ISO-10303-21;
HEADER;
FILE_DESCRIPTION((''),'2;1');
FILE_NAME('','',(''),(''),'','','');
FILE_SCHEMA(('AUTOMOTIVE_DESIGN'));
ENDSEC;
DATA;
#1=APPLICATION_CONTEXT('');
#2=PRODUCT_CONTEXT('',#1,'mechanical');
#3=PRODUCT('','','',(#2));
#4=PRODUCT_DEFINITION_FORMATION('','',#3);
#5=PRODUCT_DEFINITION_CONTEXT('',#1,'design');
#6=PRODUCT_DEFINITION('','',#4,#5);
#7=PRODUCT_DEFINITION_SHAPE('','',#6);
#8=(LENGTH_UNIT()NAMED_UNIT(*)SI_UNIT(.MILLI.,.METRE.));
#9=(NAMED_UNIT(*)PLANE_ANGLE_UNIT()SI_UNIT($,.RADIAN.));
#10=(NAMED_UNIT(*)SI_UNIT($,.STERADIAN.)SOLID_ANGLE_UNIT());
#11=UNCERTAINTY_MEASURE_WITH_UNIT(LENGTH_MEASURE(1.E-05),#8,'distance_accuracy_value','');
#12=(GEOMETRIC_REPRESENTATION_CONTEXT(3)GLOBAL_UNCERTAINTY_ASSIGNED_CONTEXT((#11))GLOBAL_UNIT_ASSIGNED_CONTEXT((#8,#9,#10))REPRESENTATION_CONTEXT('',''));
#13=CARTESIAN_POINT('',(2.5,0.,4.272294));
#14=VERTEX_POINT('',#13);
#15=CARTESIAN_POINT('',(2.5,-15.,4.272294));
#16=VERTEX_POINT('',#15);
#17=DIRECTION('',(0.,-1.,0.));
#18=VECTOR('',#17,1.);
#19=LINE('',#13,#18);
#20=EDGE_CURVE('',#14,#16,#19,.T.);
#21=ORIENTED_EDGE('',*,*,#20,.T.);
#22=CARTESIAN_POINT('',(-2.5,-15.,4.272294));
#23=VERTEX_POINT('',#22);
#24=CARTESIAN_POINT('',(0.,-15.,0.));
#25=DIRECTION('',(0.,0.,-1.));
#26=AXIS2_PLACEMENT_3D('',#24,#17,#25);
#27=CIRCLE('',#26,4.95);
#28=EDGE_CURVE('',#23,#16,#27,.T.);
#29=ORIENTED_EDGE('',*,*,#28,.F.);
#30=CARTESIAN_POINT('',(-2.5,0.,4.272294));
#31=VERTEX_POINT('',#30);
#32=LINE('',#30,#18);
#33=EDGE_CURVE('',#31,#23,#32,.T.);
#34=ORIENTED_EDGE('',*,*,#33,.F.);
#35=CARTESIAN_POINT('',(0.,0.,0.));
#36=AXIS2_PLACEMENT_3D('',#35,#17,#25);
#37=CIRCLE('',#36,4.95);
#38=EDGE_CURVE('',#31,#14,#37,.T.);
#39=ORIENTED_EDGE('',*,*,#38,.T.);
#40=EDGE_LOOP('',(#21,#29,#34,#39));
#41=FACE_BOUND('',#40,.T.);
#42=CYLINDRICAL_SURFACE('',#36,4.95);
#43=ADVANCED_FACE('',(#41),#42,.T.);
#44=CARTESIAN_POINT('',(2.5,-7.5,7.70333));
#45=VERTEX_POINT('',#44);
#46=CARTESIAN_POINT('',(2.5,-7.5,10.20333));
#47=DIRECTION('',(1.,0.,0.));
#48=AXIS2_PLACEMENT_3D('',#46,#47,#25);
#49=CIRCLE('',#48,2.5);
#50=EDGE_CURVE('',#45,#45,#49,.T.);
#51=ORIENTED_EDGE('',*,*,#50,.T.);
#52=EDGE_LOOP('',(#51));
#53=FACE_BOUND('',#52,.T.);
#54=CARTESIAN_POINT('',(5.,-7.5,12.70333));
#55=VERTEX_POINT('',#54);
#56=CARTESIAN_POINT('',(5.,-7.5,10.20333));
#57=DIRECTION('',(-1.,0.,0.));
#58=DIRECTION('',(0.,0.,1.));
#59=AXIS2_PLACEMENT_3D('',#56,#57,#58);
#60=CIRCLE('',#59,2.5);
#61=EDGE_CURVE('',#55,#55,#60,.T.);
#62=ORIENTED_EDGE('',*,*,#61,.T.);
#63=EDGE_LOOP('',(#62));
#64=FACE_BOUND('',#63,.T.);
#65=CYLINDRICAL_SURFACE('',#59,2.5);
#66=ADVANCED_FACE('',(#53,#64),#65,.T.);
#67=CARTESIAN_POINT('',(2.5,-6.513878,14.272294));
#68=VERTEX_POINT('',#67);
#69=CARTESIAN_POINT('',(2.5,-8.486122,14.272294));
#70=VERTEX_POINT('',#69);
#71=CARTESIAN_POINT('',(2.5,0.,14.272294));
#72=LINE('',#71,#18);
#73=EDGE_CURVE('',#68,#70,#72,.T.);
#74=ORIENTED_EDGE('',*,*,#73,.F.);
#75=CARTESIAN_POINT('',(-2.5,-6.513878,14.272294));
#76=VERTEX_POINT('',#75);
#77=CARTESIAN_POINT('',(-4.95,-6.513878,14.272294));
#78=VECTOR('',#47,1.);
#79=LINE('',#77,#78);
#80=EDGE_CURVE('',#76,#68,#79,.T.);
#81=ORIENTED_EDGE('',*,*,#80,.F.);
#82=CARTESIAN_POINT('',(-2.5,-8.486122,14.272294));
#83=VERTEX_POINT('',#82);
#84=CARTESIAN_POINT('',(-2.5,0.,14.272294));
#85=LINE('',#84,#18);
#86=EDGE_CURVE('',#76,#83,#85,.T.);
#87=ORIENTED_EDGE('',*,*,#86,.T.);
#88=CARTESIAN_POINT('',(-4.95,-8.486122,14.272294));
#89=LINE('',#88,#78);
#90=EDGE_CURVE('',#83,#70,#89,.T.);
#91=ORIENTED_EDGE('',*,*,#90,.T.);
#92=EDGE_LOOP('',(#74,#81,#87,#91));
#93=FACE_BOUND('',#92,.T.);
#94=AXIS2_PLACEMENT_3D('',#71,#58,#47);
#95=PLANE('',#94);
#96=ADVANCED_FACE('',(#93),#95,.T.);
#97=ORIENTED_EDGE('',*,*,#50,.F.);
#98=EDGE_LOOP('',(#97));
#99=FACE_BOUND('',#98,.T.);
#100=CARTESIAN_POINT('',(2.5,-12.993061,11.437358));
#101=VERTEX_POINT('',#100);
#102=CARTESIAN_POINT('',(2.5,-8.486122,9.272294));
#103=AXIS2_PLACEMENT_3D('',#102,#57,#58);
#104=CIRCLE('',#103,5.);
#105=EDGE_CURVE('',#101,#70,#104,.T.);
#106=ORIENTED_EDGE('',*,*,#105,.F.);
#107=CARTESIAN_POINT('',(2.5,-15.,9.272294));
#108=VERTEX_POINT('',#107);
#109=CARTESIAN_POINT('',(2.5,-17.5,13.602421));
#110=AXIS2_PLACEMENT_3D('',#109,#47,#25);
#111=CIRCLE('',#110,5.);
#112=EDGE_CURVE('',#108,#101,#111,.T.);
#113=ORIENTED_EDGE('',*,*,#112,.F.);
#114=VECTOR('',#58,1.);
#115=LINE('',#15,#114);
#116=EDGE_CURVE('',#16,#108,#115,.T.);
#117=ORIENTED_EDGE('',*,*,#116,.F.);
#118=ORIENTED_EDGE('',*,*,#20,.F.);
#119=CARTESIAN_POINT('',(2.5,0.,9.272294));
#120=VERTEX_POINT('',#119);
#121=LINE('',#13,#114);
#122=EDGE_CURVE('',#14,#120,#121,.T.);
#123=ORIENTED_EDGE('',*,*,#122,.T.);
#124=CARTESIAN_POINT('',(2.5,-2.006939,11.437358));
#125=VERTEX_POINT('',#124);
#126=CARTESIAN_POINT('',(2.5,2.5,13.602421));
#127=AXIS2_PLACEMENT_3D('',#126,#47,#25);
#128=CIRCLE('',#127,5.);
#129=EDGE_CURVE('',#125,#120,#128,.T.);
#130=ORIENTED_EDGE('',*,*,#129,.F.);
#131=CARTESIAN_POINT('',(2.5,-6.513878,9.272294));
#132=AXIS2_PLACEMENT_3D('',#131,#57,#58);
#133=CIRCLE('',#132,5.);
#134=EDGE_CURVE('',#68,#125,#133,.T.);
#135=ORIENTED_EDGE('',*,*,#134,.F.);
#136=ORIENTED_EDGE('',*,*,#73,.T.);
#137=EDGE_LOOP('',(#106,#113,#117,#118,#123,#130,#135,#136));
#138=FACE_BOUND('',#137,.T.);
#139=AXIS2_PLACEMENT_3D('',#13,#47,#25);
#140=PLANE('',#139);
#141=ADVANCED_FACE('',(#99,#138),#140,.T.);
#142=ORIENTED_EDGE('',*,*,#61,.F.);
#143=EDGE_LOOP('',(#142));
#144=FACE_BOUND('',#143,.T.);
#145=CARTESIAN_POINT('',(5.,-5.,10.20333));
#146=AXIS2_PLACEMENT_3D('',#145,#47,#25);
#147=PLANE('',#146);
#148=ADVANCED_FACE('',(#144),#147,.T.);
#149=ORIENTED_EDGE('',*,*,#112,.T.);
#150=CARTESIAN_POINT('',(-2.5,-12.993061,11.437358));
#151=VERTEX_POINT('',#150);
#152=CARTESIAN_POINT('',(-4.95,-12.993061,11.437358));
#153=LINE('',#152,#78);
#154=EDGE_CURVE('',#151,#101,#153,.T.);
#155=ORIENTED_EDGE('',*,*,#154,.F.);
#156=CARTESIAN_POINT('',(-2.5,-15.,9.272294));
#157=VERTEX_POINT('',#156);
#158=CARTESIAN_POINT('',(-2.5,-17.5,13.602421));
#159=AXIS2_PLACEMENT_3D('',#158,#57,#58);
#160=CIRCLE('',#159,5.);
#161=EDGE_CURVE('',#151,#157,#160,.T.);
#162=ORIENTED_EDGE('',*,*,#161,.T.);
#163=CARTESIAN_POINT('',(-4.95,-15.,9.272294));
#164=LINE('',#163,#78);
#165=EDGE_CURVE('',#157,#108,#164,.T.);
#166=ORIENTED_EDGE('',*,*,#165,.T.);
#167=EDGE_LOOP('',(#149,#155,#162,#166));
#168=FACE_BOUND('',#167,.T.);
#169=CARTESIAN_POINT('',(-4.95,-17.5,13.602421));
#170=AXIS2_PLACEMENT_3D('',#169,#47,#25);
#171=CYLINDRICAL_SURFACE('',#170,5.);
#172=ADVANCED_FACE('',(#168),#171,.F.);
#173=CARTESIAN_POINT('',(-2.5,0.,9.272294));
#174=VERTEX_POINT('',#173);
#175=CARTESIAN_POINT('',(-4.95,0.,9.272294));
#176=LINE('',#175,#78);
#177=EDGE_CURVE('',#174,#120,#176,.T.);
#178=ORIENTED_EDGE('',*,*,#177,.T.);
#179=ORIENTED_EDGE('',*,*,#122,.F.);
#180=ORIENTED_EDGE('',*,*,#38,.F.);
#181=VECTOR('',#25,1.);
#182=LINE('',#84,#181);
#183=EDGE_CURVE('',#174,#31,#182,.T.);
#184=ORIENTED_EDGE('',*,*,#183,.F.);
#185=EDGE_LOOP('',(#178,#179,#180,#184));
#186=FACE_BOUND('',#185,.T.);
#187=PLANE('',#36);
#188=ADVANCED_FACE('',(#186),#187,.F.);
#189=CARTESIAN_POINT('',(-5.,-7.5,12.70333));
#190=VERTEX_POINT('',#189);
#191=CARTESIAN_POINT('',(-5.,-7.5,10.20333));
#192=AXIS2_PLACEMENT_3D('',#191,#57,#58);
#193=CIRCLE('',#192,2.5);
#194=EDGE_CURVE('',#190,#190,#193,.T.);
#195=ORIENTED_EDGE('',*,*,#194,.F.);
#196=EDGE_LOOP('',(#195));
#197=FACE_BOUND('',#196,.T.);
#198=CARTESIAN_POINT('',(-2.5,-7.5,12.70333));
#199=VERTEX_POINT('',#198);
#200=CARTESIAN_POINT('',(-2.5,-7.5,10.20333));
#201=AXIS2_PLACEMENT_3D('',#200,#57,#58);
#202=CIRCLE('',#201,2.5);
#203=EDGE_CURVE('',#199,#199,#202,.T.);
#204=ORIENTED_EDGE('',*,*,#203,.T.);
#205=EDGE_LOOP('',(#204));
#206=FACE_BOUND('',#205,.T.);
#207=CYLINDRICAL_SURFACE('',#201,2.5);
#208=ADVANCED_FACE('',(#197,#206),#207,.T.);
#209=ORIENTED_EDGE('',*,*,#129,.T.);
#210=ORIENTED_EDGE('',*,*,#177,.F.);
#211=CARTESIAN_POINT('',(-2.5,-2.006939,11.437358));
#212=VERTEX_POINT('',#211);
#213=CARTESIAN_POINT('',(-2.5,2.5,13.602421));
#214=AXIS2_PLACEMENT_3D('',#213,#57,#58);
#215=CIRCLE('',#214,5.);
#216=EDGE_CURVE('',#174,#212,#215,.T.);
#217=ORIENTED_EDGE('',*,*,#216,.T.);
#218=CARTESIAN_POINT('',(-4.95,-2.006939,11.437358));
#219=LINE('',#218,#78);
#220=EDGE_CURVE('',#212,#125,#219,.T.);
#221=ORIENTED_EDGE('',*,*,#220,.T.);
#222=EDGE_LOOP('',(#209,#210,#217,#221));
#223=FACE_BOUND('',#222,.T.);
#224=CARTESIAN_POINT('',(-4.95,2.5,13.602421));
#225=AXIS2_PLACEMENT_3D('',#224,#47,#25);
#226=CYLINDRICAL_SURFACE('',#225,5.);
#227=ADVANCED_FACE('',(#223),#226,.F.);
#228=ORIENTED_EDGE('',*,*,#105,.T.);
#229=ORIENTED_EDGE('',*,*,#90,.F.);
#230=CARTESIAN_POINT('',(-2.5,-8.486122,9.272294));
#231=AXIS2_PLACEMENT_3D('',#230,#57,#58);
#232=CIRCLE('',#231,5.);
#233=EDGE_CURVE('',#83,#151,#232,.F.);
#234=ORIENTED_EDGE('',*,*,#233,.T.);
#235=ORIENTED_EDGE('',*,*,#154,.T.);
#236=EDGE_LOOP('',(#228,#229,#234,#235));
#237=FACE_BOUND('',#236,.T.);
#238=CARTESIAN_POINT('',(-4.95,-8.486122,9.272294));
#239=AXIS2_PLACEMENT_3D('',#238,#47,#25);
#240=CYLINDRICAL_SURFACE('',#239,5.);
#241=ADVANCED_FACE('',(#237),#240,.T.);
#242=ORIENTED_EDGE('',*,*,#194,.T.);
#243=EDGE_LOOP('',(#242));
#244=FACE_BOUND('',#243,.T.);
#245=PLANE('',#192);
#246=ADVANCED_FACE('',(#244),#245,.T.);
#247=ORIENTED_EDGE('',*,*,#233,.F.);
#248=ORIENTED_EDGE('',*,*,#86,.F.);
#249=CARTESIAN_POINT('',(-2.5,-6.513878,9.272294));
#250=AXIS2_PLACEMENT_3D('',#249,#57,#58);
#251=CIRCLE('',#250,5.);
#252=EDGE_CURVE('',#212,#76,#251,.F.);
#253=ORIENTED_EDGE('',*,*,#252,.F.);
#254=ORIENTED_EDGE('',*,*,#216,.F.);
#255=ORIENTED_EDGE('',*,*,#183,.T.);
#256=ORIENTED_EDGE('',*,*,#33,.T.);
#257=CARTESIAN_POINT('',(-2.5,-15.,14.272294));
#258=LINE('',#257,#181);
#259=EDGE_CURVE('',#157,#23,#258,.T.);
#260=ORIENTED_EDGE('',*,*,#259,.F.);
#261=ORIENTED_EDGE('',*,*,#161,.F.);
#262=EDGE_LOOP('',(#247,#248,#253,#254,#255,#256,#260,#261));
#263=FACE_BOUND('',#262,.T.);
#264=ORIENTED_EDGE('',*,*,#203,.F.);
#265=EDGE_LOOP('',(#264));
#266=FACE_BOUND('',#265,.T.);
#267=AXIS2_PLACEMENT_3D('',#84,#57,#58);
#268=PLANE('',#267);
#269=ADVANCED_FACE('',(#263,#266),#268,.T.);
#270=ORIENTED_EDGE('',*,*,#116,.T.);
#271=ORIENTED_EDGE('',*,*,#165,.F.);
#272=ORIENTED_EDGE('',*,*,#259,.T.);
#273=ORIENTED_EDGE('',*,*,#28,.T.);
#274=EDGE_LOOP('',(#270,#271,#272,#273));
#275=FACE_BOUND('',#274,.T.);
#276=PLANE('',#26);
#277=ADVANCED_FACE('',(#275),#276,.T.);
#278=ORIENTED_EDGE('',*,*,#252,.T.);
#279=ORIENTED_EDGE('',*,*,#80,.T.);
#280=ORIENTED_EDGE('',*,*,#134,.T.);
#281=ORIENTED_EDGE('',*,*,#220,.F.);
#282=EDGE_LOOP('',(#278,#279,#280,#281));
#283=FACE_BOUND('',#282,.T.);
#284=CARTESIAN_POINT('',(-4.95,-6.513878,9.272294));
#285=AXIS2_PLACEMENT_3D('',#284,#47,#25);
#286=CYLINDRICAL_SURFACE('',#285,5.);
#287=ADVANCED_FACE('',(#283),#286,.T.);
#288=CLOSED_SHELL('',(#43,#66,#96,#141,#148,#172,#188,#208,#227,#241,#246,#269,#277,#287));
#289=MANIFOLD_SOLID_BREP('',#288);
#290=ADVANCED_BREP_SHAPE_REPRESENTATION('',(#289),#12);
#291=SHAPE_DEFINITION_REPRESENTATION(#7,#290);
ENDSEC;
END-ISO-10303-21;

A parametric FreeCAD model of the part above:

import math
import FreeCAD as App
import Part
import Sketcher

V = App.Vector
Q = App.Units.Quantity


def add_polygon(sketch, points):
    """Adds a closed chain of lines whose ends are joined by coincident constraints."""
    first, n = sketch.GeometryCount, len(points)
    for a, b in zip(points, points[1:] + points[:1]):
        sketch.addGeometry(Part.LineSegment(App.Vector(*a, 0), App.Vector(*b, 0)), False)
    for i in range(n):
        sketch.addConstraint(Sketcher.Constraint("Coincident", first + i, 2, first + (i + 1) % n, 1))

doc = App.newDocument("Part")
body = doc.addObject("PartDesign::Body", "Body")

# Sketch on XZ plane
sketch1 = doc.addObject("Sketcher::SketchObject", "Sketch")
body.addObject(sketch1)
sketch1.AttachmentSupport = (doc.XZ_Plane, [""])
sketch1.MapMode = "FlatFace"
sketch1.AttachmentOffset = App.Placement(V(0, 0, 15), App.Rotation())
sketch1.addGeometry([
    Part.LineSegment(V(-2.5, 14.272294, 0), V(-2.5, 4.272294, 0)),
    Part.ArcOfCircle(Part.Circle(V(0, 0, 0), V(0, 0, 1), 4.95), math.radians(120.334705), math.radians(419.665295)),
    Part.LineSegment(V(2.5, 4.272294, 0), V(2.5, 14.272294, 0)),
    Part.LineSegment(V(2.5, 14.272294, 0), V(-2.5, 14.272294, 0)),
], False)
sketch1.addConstraint([
    Sketcher.Constraint("Coincident", 0, 2, 1, 1),
    Sketcher.Constraint("Coincident", 1, 2, 2, 1),
    Sketcher.Constraint("Coincident", 2, 2, 3, 1),
    Sketcher.Constraint("Coincident", 3, 2, 0, 1),
    Sketcher.Constraint("Vertical", 0),
    Sketcher.Constraint("Vertical", 2),
    Sketcher.Constraint("Horizontal", 3),
    Sketcher.Constraint("Coincident", 1, 3, -1, 1),
    Sketcher.Constraint("Horizontal", 0, 2, 1, 2),
    Sketcher.Constraint("DistanceX", 3, 2, 3, 1, Q("5 mm")),
    Sketcher.Constraint("DistanceY", 0, 2, 0, 1, Q("10 mm")),
    Sketcher.Constraint("Radius", 1, Q("4.95 mm")),
])
pad1 = doc.addObject("PartDesign::Pad", "Pad")
body.addObject(pad1)
pad1.Profile = sketch1
pad1.Length = 15
pad1.Reversed = True

# Sketch on YZ plane
sketch2 = doc.addObject("Sketcher::SketchObject", "Sketch001")
body.addObject(sketch2)
sketch2.AttachmentSupport = (doc.YZ_Plane, [""])
sketch2.MapMode = "FlatFace"
sketch2.AttachmentOffset = App.Placement(V(0, 0, 2.5), App.Rotation())
sketch2.addGeometry([
    Part.LineSegment(V(-15, 14.272294, 0), V(-15, 9.272294, 0)),
    Part.ArcOfCircle(Part.Circle(V(-17.5, 13.602421, 0), V(0, 0, 1), 5), math.radians(-60), math.radians(-25.658906)),
    Part.ArcOfCircle(Part.Circle(V(-8.486122, 9.272294, 0), V(0, 0, 1), 5), math.radians(90), math.radians(154.341094)),
    Part.LineSegment(V(-8.486122, 14.272294, 0), V(-15, 14.272294, 0)),
], False)
sketch2.addConstraint([
    Sketcher.Constraint("Coincident", 0, 2, 1, 1),
    Sketcher.Constraint("Tangent", 1, 2, 2, 2),
    Sketcher.Constraint("Tangent", 2, 1, 3, 1),
    Sketcher.Constraint("Coincident", 3, 2, 0, 1),
    Sketcher.Constraint("Vertical", 0),
    Sketcher.Constraint("Horizontal", 3),
    Sketcher.Constraint("Equal", 1, 2),
    Sketcher.Constraint("Horizontal", 2, 3, 0, 2),
    Sketcher.Constraint("Radius", 1, Q("5 mm")),
    Sketcher.Constraint("DistanceX", 0, 2, -1, 1, Q("15 mm")),
    Sketcher.Constraint("DistanceX", 1, 3, -1, 1, Q("17.5 mm")),
    Sketcher.Constraint("DistanceY", -1, 1, 1, 3, Q("13.602421 mm")),
])
pocket1 = doc.addObject("PartDesign::Pocket", "Pocket")
body.addObject(pocket1)
pocket1.Profile = sketch2
pocket1.Type = "ThroughAll"

# Sketch on YZ plane
sketch3 = doc.addObject("Sketcher::SketchObject", "Sketch002")
body.addObject(sketch3)
sketch3.AttachmentSupport = (doc.YZ_Plane, [""])
sketch3.MapMode = "FlatFace"
sketch3.AttachmentOffset = App.Placement(V(0, 0, 2.5), App.Rotation())
sketch3.addGeometry([
    Part.LineSegment(V(0, 9.272294, 0), V(0, 14.272294, 0)),
    Part.LineSegment(V(0, 14.272294, 0), V(-6.513878, 14.272294, 0)),
    Part.ArcOfCircle(Part.Circle(V(-6.513878, 9.272294, 0), V(0, 0, 1), 5), math.radians(25.658906), math.radians(90)),
    Part.ArcOfCircle(Part.Circle(V(2.5, 13.602421, 0), V(0, 0, 1), 5), math.radians(-154.341094), math.radians(-120)),
], False)
sketch3.addConstraint([
    Sketcher.Constraint("Coincident", 0, 2, 1, 1),
    Sketcher.Constraint("Tangent", 1, 2, 2, 2),
    Sketcher.Constraint("Tangent", 2, 1, 3, 1),
    Sketcher.Constraint("Coincident", 3, 2, 0, 1),
    Sketcher.Constraint("Vertical", 0),
    Sketcher.Constraint("Horizontal", 1),
    Sketcher.Constraint("Equal", 2, 3),
    Sketcher.Constraint("PointOnObject", 0, 2, -2),
    Sketcher.Constraint("Horizontal", 2, 3, 3, 2),
    Sketcher.Constraint("Radius", 2, Q("5 mm")),
    Sketcher.Constraint("DistanceX", -1, 1, 3, 3, Q("2.5 mm")),
    Sketcher.Constraint("DistanceY", -1, 1, 3, 3, Q("13.602421 mm")),
])
pocket2 = doc.addObject("PartDesign::Pocket", "Pocket001")
body.addObject(pocket2)
pocket2.Profile = sketch3
pocket2.Type = "ThroughAll"

# Sketch on XY plane
sketch4 = doc.addObject("Sketcher::SketchObject", "Sketch003")
body.addObject(sketch4)
sketch4.AttachmentSupport = (doc.XY_Plane, [""])
sketch4.MapMode = "FlatFace"
sketch4.AttachmentOffset = App.Placement(V(0, 0, 10.20333), App.Rotation())
add_polygon(sketch4, [(-2.5, -5), (-2.5, -7.5), (-5, -7.5), (-5, -5)])  # lines 0-3
sketch4.addGeometry(Part.LineSegment(V(-2.5, -7.5, 0), V(-5, -7.5, 0)), True)  # axis
sketch4.addConstraint([
    Sketcher.Constraint("Vertical", 0),
    Sketcher.Constraint("Horizontal", 1),
    Sketcher.Constraint("Vertical", 2),
    Sketcher.Constraint("Horizontal", 3),
    Sketcher.Constraint("Horizontal", 4),
    Sketcher.Constraint("Coincident", 4, 1, 0, 2),
    Sketcher.Constraint("Vertical", 2, 2, 4, 2),
    Sketcher.Constraint("Equal", 4, 0),
    Sketcher.Constraint("DistanceX", 1, 2, 1, 1, Q("2.5 mm")),
    Sketcher.Constraint("DistanceX", 1, 2, -1, 1, Q("5 mm")),
    Sketcher.Constraint("DistanceY", 2, 2, -1, 1, Q("5 mm")),
])
revolution = doc.addObject("PartDesign::Revolution", "Revolution")
body.addObject(revolution)
revolution.Profile = sketch4
revolution.ReferenceAxis = (sketch4, ["Axis0"])
revolution.Angle = 360

# Sketch on XY plane
sketch5 = doc.addObject("Sketcher::SketchObject", "Sketch004")
body.addObject(sketch5)
sketch5.AttachmentSupport = (doc.XY_Plane, [""])
sketch5.MapMode = "FlatFace"
sketch5.AttachmentOffset = App.Placement(V(0, 0, 10.20333), App.Rotation())
add_polygon(sketch5, [(5, -5), (5, -7.5), (2.5, -7.5), (2.5, -5)])  # lines 0-3
sketch5.addGeometry(Part.LineSegment(V(5, -7.5, 0), V(2.5, -7.5, 0)), True)  # axis
sketch5.addConstraint([
    Sketcher.Constraint("Vertical", 0),
    Sketcher.Constraint("Horizontal", 1),
    Sketcher.Constraint("Vertical", 2),
    Sketcher.Constraint("Horizontal", 3),
    Sketcher.Constraint("Horizontal", 4),
    Sketcher.Constraint("Coincident", 4, 1, 0, 2),
    Sketcher.Constraint("Vertical", 2, 2, 4, 2),
    Sketcher.Constraint("Equal", 4, 0),
    Sketcher.Constraint("DistanceX", 1, 2, 1, 1, Q("2.5 mm")),
    Sketcher.Constraint("DistanceX", -1, 1, 0, 2, Q("5 mm")),
    Sketcher.Constraint("DistanceY", 2, 2, -1, 1, Q("5 mm")),
])
revolution2 = doc.addObject("PartDesign::Revolution", "Revolution001")
body.addObject(revolution2)
revolution2.Profile = sketch5
revolution2.ReferenceAxis = (sketch5, ["Axis0"])
revolution2.Angle = 360

doc.recompute()
